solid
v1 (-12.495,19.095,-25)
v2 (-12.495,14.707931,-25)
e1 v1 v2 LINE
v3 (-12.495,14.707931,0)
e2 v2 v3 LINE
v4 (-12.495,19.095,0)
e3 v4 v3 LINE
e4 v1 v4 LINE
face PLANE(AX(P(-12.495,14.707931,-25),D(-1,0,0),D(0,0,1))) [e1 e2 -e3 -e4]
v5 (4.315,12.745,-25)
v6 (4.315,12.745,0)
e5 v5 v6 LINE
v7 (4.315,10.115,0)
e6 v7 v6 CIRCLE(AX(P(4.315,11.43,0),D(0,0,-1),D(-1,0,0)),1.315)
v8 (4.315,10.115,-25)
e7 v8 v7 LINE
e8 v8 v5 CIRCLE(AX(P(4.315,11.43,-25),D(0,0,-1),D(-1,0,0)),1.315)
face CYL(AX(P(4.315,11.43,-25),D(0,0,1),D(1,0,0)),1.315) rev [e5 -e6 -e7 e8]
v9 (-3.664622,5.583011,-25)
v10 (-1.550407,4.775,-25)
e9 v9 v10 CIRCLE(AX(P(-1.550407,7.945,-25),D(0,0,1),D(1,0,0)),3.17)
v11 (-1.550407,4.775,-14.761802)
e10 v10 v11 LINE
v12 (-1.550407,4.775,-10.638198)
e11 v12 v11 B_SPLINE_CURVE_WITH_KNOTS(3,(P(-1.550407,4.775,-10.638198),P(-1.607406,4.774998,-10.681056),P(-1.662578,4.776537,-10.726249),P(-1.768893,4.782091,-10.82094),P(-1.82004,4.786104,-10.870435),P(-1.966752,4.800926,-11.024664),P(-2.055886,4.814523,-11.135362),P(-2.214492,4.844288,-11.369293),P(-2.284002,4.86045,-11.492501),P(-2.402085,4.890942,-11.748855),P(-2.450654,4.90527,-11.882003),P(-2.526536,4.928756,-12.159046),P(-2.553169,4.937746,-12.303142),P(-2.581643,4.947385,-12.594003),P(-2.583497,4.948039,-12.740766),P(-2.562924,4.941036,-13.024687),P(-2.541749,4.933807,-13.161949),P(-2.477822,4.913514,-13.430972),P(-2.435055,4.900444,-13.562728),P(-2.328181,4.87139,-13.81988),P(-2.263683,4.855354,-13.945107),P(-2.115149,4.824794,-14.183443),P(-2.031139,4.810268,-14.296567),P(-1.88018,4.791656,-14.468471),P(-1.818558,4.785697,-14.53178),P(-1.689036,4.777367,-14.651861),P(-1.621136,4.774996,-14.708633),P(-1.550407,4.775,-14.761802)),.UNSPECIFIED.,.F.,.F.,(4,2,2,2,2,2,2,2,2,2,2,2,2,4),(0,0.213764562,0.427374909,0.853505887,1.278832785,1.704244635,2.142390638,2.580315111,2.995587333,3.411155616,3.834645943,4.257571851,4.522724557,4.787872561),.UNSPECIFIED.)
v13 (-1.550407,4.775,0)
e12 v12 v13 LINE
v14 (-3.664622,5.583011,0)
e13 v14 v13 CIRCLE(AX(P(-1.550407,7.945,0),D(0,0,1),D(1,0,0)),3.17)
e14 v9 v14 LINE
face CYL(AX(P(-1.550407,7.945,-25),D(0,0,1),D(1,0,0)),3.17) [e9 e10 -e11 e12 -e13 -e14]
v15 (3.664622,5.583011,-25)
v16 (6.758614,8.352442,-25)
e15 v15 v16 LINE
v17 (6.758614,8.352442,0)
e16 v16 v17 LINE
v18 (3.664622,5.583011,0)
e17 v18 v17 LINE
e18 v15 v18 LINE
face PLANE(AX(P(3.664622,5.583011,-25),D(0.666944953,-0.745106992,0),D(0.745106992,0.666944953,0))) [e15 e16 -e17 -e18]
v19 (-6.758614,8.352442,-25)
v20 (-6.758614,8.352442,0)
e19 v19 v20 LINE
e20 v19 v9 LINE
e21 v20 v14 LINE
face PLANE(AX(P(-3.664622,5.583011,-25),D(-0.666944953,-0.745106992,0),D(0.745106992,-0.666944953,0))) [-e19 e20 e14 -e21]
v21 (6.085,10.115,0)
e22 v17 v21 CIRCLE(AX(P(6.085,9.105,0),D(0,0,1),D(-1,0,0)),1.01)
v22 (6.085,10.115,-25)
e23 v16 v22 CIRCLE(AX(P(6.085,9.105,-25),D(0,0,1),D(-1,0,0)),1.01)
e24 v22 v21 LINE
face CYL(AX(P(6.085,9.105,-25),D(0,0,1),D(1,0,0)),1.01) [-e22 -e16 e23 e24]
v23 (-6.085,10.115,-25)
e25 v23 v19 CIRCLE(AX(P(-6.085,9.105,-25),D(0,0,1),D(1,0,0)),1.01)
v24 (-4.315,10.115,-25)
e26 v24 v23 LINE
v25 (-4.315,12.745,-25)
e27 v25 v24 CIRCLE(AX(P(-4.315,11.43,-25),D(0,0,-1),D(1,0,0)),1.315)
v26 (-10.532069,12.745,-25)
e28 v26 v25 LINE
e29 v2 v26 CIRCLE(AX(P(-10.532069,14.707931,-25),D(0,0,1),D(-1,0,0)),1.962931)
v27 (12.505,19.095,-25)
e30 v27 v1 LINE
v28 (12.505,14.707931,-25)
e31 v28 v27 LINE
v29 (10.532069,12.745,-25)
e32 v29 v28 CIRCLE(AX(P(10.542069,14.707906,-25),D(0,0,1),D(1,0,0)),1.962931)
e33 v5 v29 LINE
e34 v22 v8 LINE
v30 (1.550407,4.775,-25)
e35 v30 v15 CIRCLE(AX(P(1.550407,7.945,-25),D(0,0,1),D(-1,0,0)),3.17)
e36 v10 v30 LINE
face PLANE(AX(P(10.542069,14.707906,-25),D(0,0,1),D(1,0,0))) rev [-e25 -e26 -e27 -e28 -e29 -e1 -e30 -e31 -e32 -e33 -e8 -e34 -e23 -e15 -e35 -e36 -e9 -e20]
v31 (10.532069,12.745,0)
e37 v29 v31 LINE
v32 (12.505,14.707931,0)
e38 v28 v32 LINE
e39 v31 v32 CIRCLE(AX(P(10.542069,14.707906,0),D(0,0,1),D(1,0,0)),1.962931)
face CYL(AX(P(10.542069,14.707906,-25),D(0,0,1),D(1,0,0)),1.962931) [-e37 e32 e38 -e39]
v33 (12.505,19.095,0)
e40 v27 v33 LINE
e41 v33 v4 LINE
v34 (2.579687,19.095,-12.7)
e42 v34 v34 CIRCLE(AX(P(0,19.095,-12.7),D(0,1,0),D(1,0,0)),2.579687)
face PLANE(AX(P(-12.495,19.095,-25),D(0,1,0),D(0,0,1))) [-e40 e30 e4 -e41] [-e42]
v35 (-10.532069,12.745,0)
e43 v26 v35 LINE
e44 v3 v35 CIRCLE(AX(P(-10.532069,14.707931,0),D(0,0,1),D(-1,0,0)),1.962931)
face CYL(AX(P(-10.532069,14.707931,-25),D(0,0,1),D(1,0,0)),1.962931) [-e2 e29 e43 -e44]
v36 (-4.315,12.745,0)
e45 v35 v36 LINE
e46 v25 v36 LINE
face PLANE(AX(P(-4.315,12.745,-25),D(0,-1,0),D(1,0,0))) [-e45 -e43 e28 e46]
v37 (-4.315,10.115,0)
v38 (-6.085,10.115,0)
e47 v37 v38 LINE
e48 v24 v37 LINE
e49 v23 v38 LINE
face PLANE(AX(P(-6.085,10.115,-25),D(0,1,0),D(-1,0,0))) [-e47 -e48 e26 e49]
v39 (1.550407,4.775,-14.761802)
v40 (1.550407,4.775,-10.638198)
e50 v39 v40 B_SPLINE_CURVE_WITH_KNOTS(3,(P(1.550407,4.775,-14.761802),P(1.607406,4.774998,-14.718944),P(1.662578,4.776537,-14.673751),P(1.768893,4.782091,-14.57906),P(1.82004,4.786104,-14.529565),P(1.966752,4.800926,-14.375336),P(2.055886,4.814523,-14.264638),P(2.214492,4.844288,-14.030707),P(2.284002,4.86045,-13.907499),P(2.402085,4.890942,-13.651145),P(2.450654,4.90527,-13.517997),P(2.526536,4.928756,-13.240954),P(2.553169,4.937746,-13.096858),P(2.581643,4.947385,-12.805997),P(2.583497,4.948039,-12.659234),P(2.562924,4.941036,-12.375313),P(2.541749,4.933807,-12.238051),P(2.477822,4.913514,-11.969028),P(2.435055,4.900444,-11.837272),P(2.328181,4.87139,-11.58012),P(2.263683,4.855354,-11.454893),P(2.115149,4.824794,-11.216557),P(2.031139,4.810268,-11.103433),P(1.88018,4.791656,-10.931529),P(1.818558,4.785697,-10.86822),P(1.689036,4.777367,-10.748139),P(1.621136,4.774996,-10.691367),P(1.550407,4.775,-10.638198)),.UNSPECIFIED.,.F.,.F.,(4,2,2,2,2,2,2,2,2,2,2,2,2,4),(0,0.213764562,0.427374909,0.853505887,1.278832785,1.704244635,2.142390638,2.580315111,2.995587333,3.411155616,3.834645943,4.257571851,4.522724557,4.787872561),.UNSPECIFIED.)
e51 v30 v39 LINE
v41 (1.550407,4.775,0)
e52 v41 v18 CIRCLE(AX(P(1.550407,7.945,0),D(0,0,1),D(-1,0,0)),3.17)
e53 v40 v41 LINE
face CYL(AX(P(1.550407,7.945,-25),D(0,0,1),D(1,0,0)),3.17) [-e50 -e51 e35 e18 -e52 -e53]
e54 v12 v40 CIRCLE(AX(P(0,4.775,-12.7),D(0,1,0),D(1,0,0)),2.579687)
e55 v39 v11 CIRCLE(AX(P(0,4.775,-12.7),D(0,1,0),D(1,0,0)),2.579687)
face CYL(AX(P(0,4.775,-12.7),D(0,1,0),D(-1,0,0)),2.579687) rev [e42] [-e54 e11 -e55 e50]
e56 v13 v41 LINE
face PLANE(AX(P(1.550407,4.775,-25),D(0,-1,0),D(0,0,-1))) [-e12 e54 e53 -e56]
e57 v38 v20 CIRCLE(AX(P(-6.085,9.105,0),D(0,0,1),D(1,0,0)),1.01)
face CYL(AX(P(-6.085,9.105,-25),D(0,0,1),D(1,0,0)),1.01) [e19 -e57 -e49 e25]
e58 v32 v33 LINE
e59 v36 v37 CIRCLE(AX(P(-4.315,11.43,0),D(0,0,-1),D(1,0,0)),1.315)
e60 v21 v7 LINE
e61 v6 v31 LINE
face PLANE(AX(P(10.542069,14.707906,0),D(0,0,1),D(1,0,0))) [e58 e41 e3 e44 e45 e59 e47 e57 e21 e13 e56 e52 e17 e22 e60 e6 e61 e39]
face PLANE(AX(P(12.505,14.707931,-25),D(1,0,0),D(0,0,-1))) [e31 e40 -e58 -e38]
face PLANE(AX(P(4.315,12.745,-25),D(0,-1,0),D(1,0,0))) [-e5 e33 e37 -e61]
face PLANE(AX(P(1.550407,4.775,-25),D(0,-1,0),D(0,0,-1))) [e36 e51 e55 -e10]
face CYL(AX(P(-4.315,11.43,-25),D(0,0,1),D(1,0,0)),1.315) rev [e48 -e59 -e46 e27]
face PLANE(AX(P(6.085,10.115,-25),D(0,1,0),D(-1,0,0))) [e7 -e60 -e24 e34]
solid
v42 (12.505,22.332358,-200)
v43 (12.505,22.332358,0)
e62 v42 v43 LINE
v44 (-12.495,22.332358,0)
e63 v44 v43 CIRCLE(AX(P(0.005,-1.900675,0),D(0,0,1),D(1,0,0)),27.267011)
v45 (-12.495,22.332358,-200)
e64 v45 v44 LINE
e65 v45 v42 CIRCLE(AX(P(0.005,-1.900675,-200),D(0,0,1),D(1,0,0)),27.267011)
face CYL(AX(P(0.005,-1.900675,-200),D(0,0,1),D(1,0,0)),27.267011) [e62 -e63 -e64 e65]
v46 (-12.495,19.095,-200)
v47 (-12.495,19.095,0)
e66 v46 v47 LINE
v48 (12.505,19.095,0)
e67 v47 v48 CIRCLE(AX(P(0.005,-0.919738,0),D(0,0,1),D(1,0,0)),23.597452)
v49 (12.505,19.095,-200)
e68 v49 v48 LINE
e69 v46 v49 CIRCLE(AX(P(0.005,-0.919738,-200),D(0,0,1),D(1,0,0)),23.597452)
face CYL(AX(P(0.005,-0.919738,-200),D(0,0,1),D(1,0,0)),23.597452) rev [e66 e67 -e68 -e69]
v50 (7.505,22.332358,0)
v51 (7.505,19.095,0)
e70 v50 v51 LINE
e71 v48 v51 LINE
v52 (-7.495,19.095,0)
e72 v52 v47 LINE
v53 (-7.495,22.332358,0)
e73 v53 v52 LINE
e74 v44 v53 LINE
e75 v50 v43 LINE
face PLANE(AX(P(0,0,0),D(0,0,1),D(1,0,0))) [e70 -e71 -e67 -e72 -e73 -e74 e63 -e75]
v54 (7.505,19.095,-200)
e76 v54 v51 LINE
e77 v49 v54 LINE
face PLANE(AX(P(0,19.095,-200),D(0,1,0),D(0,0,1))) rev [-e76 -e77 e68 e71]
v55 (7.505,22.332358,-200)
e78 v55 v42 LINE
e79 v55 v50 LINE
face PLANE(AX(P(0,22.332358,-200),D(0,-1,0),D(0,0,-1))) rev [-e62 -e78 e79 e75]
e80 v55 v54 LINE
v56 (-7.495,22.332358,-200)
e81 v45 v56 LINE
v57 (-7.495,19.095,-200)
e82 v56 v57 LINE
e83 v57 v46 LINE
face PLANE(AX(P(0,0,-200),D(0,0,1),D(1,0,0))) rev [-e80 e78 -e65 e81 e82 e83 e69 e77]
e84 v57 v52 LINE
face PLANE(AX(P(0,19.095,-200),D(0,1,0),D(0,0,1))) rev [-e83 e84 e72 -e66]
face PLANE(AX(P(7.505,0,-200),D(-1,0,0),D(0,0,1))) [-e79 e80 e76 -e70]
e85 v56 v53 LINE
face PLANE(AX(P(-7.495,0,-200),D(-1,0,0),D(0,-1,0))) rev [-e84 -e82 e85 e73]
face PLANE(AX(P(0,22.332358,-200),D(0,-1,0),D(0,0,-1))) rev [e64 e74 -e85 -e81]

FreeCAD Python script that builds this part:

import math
import FreeCAD as App
import Part
import Sketcher
Q = App.Units.Quantity

doc = App.newDocument("Part")
body = doc.addObject("PartDesign::Body", "Body")

# Sketch on XY plane
sketch1 = doc.addObject("Sketcher::SketchObject", "Sketch")
body.addObject(sketch1)
sketch1.AttachmentSupport = (doc.XY_Plane, [""])
sketch1.MapMode = "FlatFace"
sketch1.addGeometry(Part.LineSegment(App.Vector(4.3, 12.7, 0), App.Vector(10.5, 12.7, 0)), False)
sketch1.addGeometry(Part.ArcOfCircle(Part.Circle(App.Vector(10.5, 14.7, 0), App.Vector(0, 0, 1), 2), math.radians(-90), math.radians(0)), False)
sketch1.addGeometry(Part.LineSegment(App.Vector(12.5, 14.7, 0), App.Vector(12.5, 19.1, 0)), False)
sketch1.addGeometry(Part.LineSegment(App.Vector(12.5, 19.1, 0), App.Vector(-12.5, 19.1, 0)), False)
sketch1.addGeometry(Part.LineSegment(App.Vector(-12.5, 19.1, 0), App.Vector(-12.5, 14.7, 0)), False)
sketch1.addGeometry(Part.ArcOfCircle(Part.Circle(App.Vector(-10.5, 14.7, 0), App.Vector(0, 0, 1), 2), math.radians(180), math.radians(270)), False)
sketch1.addGeometry(Part.LineSegment(App.Vector(-10.5, 12.7, 0), App.Vector(-4.3, 12.7, 0)), False)
sketch1.addGeometry(Part.ArcOfCircle(Part.Circle(App.Vector(-4.3, 11.4, 0), App.Vector(0, 0, 1), 1.3), math.radians(-90), math.radians(90)), False)
sketch1.addGeometry(Part.LineSegment(App.Vector(-4.3, 10.1, 0), App.Vector(-6.1, 10.1, 0)), False)
sketch1.addGeometry(Part.ArcOfCircle(Part.Circle(App.Vector(-6.1, 9.1, 0), App.Vector(0, 0, 1), 1), math.radians(90), math.radians(228)), False)
sketch1.addGeometry(Part.LineSegment(App.Vector(-6.8, 8.4, 0), App.Vector(-3.7, 5.6, 0)), False)
sketch1.addGeometry(Part.ArcOfCircle(Part.Circle(App.Vector(-1.6, 7.9, 0), App.Vector(0, 0, 1), 3.2), math.radians(-132), math.radians(-90)), False)
sketch1.addGeometry(Part.LineSegment(App.Vector(-1.6, 4.8, 0), App.Vector(1.6, 4.8, 0)), False)
sketch1.addGeometry(Part.ArcOfCircle(Part.Circle(App.Vector(1.6, 7.9, 0), App.Vector(0, 0, 1), 3.2), math.radians(-90), math.radians(-48)), False)
sketch1.addGeometry(Part.LineSegment(App.Vector(3.7, 5.6, 0), App.Vector(6.8, 8.4, 0)), False)
sketch1.addGeometry(Part.ArcOfCircle(Part.Circle(App.Vector(6.1, 9.1, 0), App.Vector(0, 0, 1), 1), math.radians(-48), math.radians(90)), False)
sketch1.addGeometry(Part.LineSegment(App.Vector(6.1, 10.1, 0), App.Vector(4.3, 10.1, 0)), False)
sketch1.addGeometry(Part.ArcOfCircle(Part.Circle(App.Vector(4.3, 11.4, 0), App.Vector(0, 0, 1), 1.3), math.radians(90), math.radians(270)), False)
sketch1.addConstraint(Sketcher.Constraint("Coincident", 0, 2, 1, 1))
sketch1.addConstraint(Sketcher.Constraint("Coincident", 1, 2, 2, 1))
sketch1.addConstraint(Sketcher.Constraint("Coincident", 2, 2, 3, 1))
sketch1.addConstraint(Sketcher.Constraint("Coincident", 3, 2, 4, 1))
sketch1.addConstraint(Sketcher.Constraint("Tangent", 4, 2, 5, 1))
sketch1.addConstraint(Sketcher.Constraint("Tangent", 5, 2, 6, 1))
sketch1.addConstraint(Sketcher.Constraint("Tangent", 6, 2, 7, 2))
sketch1.addConstraint(Sketcher.Constraint("Tangent", 7, 1, 8, 1))
sketch1.addConstraint(Sketcher.Constraint("Tangent", 8, 2, 9, 1))
sketch1.addConstraint(Sketcher.Constraint("Tangent", 9, 2, 10, 1))
sketch1.addConstraint(Sketcher.Constraint("Tangent", 10, 2, 11, 1))
sketch1.addConstraint(Sketcher.Constraint("Tangent", 11, 2, 12, 1))
sketch1.addConstraint(Sketcher.Constraint("Tangent", 12, 2, 13, 1))
sketch1.addConstraint(Sketcher.Constraint("Tangent", 13, 2, 14, 1))
sketch1.addConstraint(Sketcher.Constraint("Tangent", 14, 2, 15, 1))
sketch1.addConstraint(Sketcher.Constraint("Tangent", 15, 2, 16, 1))
sketch1.addConstraint(Sketcher.Constraint("Tangent", 16, 2, 17, 2))
sketch1.addConstraint(Sketcher.Constraint("Tangent", 17, 1, 0, 1))
sketch1.addConstraint(Sketcher.Constraint("Horizontal", 0))
sketch1.addConstraint(Sketcher.Constraint("Vertical", 2))
sketch1.addConstraint(Sketcher.Constraint("Horizontal", 3))
sketch1.addConstraint(Sketcher.Constraint("Vertical", 4))
sketch1.addConstraint(Sketcher.Constraint("Horizontal", 6))
sketch1.addConstraint(Sketcher.Constraint("Horizontal", 8))
sketch1.addConstraint(Sketcher.Constraint("Horizontal", 12))
sketch1.addConstraint(Sketcher.Constraint("Horizontal", 16))
sketch1.addConstraint(Sketcher.Constraint("Equal", 1, 5))
sketch1.addConstraint(Sketcher.Constraint("Equal", 11, 13))
sketch1.addConstraint(Sketcher.Constraint("Equal", 9, 15))
sketch1.addConstraint(Sketcher.Constraint("Equal", 7, 17))
sketch1.addConstraint(Sketcher.Constraint("Symmetric", 9, 3, 15, 3, -2))
sketch1.addConstraint(Sketcher.Constraint("Horizontal", 5, 3, 1, 2))
sketch1.addConstraint(Sketcher.Constraint("Horizontal", 10, 2, 13, 2))
sketch1.addConstraint(Sketcher.Constraint("Equal", 0, 6))
sketch1.addConstraint(Sketcher.Constraint("Equal", 8, 16))
sketch1.addConstraint(Sketcher.Constraint("DistanceX", 3, 2, 3, 1, Q("25 mm")))
sketch1.addConstraint(Sketcher.Constraint("Radius", 9, Q("1.01 mm")))
sketch1.addConstraint(Sketcher.Constraint("Radius", 11, Q("3.17 mm")))
sketch1.addConstraint(Sketcher.Constraint("Radius", 7, Q("1.315 mm")))
sketch1.addConstraint(Sketcher.Constraint("DistanceX", 8, 2, 8, 1, Q("1.77 mm")))
sketch1.addConstraint(Sketcher.Constraint("DistanceX", 7, 3, 15, 3, Q("10.4 mm")))
sketch1.addConstraint(Sketcher.Constraint("DistanceY", 13, 3, 0, 2, Q("4.8 mm")))
sketch1.addConstraint(Sketcher.Constraint("DistanceY", -1, 1, 7, 3, Q("11.43 mm")))
sketch1.addConstraint(Sketcher.Constraint("Radius", 1, Q("1.962931 mm")))
sketch1.addConstraint(Sketcher.Constraint("DistanceX", 0, 2, 1, 3, Q("0.01 mm")))
sketch1.addConstraint(Sketcher.Constraint("DistanceY", 0, 2, 2, 2, Q("6.35 mm")))
sketch1.addConstraint(Sketcher.Constraint("DistanceX", 12, 1, 12, 2, Q("3.100813 mm")))
pad1 = doc.addObject("PartDesign::Pad", "Pad")
body.addObject(pad1)
pad1.Profile = sketch1
pad1.Length = 25
pad1.Reversed = True

# Sketch on XZ plane
sketch2 = doc.addObject("Sketcher::SketchObject", "Sketch001")
body.addObject(sketch2)
sketch2.AttachmentSupport = (doc.XZ_Plane, [""])
sketch2.MapMode = "FlatFace"
sketch2.AttachmentOffset = App.Placement(App.Vector(0, 0, -19.095), App.Rotation())
sketch2.addGeometry(Part.Circle(App.Vector(0, -12.7, 0), App.Vector(0, 0, 1), 2.6), False)
sketch2.addConstraint(Sketcher.Constraint("PointOnObject", 0, 3, -2))
sketch2.addConstraint(Sketcher.Constraint("DistanceY", 0, 3, -1, 1, Q("12.7 mm")))
sketch2.addConstraint(Sketcher.Constraint("Diameter", 0, Q("5.159375 mm")))
pocket1 = doc.addObject("PartDesign::Pocket", "Pocket")
body.addObject(pocket1)
pocket1.Profile = sketch2
pocket1.Type = "ThroughAll"
pocket1.Reversed = True
body2 = doc.addObject("PartDesign::Body", "Body001")

# Sketch on XY plane
sketch3 = doc.addObject("Sketcher::SketchObject", "Sketch002")
body2.addObject(sketch3)
sketch3.AttachmentSupport = (doc.getObject("XY_Plane001"), [""])
sketch3.MapMode = "FlatFace"
sketch3.addGeometry(Part.ArcOfCircle(Part.Circle(App.Vector(0, -1.9, 0), App.Vector(0, 0, 1), 27.3), math.radians(117), math.radians(423)), False)
sketch3.addGeometry(Part.LineSegment(App.Vector(12.5, 22.3, 0), App.Vector(7.5, 22.3, 0)), False)
sketch3.addGeometry(Part.LineSegment(App.Vector(7.5, 22.3, 0), App.Vector(7.5, 19.1, 0)), False)
sketch3.addGeometry(Part.LineSegment(App.Vector(7.5, 19.1, 0), App.Vector(12.5, 19.1, 0)), False)
sketch3.addGeometry(Part.ArcOfCircle(Part.Circle(App.Vector(0, -0.9, 0), App.Vector(0, 0, 1), 23.6), math.radians(122), math.radians(418)), False)
sketch3.addGeometry(Part.LineSegment(App.Vector(-12.5, 19.1, 0), App.Vector(-7.5, 19.1, 0)), False)
sketch3.addGeometry(Part.LineSegment(App.Vector(-7.5, 19.1, 0), App.Vector(-7.5, 22.3, 0)), False)
sketch3.addGeometry(Part.LineSegment(App.Vector(-7.5, 22.3, 0), App.Vector(-12.5, 22.3, 0)), False)
sketch3.addConstraint(Sketcher.Constraint("Coincident", 0, 2, 1, 1))
sketch3.addConstraint(Sketcher.Constraint("Coincident", 1, 2, 2, 1))
sketch3.addConstraint(Sketcher.Constraint("Coincident", 2, 2, 3, 1))
sketch3.addConstraint(Sketcher.Constraint("Coincident", 3, 2, 4, 2))
sketch3.addConstraint(Sketcher.Constraint("Coincident", 4, 1, 5, 1))
sketch3.addConstraint(Sketcher.Constraint("Coincident", 5, 2, 6, 1))
sketch3.addConstraint(Sketcher.Constraint("Coincident", 6, 2, 7, 1))
sketch3.addConstraint(Sketcher.Constraint("Coincident", 7, 2, 0, 1))
sketch3.addConstraint(Sketcher.Constraint("Horizontal", 1))
sketch3.addConstraint(Sketcher.Constraint("Vertical", 2))
sketch3.addConstraint(Sketcher.Constraint("Horizontal", 3))
sketch3.addConstraint(Sketcher.Constraint("Horizontal", 5))
sketch3.addConstraint(Sketcher.Constraint("Vertical", 6))
sketch3.addConstraint(Sketcher.Constraint("Horizontal", 7))
sketch3.addConstraint(Sketcher.Constraint("Horizontal", 3, 2, 4, 1))
sketch3.addConstraint(Sketcher.Constraint("Horizontal", 1, 2, 6, 2))
sketch3.addConstraint(Sketcher.Constraint("Vertical", 0, 3, 4, 3))
sketch3.addConstraint(Sketcher.Constraint("Vertical", 0, 2, 3, 2))
sketch3.addConstraint(Sketcher.Constraint("Equal", 3, 5))
sketch3.addConstraint(Sketcher.Constraint("DistanceX", 1, 2, 1, 1, Q("5 mm")))
sketch3.addConstraint(Sketcher.Constraint("DistanceX", 4, 1, 2, 2, Q("20 mm")))
sketch3.addConstraint(Sketcher.Constraint("Radius", 0, Q("27.267011 mm")))
sketch3.addConstraint(Sketcher.Constraint("DistanceX", -1, 1, 0, 3, Q("0.005 mm")))
sketch3.addConstraint(Sketcher.Constraint("DistanceY", -1, 1, 2, 2, Q("19.095 mm")))
sketch3.addConstraint(Sketcher.Constraint("Radius", 4, Q("23.597452 mm")))
sketch3.addConstraint(Sketcher.Constraint("DistanceY", 2, 2, 2, 1, Q("3.237358 mm")))
pad2 = doc.addObject("PartDesign::Pad", "Pad001")
body2.addObject(pad2)
pad2.Profile = sketch3
pad2.Length = 200
pad2.Reversed = True

doc.recompute()
